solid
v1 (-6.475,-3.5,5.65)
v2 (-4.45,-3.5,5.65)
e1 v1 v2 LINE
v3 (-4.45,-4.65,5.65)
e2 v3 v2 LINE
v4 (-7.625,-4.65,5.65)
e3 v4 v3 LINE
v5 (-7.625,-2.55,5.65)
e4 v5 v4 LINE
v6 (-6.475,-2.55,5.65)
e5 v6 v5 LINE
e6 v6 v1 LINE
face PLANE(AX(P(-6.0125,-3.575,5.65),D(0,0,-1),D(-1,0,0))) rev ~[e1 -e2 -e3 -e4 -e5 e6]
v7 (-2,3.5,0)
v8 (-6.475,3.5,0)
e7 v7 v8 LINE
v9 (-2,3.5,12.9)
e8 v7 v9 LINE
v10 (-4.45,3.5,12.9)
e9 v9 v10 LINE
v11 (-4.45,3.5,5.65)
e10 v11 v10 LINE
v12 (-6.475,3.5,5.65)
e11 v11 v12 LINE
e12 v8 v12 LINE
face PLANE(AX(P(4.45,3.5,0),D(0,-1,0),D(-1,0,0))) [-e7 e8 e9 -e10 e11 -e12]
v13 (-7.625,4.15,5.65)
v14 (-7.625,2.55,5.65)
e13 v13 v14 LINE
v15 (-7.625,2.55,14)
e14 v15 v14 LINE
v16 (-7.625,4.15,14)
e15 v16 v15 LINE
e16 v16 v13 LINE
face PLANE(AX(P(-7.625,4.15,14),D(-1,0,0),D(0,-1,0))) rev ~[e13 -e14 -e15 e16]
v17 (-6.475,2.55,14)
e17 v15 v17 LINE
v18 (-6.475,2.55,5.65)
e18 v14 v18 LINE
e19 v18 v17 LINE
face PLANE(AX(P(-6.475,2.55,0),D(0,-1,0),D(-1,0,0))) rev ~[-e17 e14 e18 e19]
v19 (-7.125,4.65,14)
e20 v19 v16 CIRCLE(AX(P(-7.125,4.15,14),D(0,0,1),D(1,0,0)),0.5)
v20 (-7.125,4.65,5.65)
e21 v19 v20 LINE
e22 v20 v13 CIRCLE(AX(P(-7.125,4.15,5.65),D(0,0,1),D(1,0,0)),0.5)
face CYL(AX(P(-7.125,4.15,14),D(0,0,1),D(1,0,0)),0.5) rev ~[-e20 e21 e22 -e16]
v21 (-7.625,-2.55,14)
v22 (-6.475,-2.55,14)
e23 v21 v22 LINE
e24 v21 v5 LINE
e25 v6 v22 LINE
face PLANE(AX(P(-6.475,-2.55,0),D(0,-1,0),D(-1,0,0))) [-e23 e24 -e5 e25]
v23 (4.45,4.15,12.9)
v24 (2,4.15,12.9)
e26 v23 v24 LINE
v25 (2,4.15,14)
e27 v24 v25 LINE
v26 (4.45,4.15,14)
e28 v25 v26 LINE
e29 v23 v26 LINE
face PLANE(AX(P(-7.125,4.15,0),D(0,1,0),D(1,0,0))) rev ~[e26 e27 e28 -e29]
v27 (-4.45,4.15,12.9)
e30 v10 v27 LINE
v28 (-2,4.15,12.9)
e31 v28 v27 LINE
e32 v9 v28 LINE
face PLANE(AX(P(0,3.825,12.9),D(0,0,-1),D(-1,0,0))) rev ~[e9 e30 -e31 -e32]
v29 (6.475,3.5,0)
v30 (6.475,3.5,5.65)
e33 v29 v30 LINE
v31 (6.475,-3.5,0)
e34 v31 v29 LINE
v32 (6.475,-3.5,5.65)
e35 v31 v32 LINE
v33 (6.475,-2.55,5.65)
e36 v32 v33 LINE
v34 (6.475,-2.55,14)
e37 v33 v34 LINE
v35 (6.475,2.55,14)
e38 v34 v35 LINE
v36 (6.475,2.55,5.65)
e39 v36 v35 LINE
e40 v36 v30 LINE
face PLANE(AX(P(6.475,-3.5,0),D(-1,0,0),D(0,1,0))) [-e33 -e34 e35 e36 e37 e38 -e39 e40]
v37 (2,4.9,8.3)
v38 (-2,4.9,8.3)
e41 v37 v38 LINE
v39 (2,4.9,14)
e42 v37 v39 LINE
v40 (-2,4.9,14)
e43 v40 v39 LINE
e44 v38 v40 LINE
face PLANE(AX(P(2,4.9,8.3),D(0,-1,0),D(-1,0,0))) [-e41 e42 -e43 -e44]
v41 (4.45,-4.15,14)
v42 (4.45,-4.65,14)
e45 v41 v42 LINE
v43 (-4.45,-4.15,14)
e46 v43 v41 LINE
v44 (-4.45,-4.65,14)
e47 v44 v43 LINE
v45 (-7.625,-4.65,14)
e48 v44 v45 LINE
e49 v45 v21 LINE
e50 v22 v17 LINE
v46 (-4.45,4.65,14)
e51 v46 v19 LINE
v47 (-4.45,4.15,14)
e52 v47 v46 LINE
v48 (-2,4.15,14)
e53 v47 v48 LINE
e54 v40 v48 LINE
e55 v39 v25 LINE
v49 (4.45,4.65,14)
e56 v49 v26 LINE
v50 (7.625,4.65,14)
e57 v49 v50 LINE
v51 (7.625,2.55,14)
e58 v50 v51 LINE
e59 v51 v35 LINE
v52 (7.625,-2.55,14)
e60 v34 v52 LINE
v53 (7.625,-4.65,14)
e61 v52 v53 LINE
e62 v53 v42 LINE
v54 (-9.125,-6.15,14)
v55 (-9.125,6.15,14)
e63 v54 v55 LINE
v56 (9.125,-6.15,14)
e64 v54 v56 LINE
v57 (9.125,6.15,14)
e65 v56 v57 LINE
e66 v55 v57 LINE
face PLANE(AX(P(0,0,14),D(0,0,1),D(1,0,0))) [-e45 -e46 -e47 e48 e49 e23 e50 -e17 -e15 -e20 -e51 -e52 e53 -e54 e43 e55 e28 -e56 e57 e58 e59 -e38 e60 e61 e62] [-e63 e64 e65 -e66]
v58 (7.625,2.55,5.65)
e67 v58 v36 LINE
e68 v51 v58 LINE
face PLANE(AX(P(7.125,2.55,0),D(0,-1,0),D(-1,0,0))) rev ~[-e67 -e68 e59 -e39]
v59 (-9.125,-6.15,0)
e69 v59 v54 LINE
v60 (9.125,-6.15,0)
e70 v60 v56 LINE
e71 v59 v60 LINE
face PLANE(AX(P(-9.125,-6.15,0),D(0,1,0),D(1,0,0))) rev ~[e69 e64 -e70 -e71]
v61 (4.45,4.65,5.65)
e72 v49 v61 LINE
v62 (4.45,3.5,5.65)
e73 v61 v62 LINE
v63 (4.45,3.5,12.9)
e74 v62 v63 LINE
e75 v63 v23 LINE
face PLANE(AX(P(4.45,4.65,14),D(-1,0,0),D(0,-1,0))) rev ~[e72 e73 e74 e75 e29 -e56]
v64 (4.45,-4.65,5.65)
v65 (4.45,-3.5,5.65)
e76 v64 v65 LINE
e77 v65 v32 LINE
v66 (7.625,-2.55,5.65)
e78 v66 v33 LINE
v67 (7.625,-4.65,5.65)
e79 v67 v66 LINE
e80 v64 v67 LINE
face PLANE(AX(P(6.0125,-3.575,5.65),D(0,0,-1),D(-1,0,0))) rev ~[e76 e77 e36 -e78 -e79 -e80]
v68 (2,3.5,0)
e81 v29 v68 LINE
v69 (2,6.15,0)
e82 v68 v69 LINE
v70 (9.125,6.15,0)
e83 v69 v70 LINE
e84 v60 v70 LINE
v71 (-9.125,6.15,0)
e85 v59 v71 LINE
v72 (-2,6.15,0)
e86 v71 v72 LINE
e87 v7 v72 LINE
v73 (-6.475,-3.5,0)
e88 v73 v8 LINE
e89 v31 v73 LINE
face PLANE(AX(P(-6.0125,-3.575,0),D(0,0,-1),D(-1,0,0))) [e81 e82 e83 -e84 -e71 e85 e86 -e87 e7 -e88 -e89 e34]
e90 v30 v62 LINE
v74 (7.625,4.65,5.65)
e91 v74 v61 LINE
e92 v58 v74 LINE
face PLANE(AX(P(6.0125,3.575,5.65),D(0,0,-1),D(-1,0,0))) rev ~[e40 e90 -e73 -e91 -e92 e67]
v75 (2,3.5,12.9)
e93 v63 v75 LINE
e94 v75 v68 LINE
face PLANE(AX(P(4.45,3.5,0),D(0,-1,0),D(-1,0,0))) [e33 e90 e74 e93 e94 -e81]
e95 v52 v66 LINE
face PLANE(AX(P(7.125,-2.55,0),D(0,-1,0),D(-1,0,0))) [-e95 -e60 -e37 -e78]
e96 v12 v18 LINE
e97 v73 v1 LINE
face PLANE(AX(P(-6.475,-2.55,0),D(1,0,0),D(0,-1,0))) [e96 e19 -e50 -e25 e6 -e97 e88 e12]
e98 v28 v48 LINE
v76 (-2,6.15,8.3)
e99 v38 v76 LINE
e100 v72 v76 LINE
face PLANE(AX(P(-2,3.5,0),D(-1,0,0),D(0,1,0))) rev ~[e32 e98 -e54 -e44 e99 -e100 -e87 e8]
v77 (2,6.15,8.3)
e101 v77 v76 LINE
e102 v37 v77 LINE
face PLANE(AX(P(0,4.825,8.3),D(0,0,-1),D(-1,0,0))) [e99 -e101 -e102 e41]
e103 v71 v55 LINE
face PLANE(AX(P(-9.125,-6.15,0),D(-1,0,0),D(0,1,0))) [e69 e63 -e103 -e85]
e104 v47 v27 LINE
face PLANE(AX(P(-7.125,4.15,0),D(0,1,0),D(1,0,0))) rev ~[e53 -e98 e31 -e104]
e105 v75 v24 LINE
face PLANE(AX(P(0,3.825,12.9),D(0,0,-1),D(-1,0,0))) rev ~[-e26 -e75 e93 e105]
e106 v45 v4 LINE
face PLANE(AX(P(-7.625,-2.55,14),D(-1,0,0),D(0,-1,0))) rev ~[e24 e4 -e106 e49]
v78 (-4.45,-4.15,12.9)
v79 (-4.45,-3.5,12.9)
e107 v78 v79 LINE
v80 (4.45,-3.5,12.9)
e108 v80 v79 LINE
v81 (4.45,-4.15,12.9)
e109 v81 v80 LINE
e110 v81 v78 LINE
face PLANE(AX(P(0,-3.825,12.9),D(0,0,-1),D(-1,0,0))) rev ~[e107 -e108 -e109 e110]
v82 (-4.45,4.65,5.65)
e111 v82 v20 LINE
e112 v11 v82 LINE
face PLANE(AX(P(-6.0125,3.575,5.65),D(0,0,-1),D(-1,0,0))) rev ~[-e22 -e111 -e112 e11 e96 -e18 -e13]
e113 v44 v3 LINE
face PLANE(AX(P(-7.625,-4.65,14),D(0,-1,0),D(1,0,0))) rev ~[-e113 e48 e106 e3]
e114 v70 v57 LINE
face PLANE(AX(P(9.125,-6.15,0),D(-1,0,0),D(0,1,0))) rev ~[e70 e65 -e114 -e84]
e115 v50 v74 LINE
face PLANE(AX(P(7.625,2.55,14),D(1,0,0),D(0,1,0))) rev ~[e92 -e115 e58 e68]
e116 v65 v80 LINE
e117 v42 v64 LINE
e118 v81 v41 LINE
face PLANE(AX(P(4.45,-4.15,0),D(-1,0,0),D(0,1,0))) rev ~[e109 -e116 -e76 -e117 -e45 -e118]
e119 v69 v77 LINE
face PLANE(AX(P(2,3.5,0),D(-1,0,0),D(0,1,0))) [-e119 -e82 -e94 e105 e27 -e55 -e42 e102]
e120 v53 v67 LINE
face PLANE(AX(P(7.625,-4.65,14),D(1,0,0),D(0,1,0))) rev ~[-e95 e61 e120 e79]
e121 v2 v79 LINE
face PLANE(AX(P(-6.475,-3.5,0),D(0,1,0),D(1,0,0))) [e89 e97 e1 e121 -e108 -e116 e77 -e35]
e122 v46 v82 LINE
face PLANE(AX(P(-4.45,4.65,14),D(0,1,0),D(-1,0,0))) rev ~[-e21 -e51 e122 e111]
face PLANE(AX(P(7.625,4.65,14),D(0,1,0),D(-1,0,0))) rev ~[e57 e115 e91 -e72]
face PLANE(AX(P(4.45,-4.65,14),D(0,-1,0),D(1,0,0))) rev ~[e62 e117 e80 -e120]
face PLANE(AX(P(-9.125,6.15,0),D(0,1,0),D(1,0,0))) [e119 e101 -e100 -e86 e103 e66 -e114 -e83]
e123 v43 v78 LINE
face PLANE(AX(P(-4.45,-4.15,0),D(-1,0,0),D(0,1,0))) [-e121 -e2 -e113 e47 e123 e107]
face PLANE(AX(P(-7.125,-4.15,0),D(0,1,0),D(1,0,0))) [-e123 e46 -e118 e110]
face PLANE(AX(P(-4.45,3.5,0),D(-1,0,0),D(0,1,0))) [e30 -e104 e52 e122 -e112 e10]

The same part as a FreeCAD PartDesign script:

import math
import FreeCAD as App
import Part
import Sketcher
from FreeCAD import Vector

doc = App.newDocument("Part")
body = doc.addObject("PartDesign::Body", "Body")

# Sketch on XY plane
sketch1 = doc.addObject("Sketcher::SketchObject", "Sketch")
body.addObject(sketch1)
sketch1.AttachmentSupport = (doc.XY_Plane, [""])
sketch1.MapMode = "FlatFace"
sketch1.addGeometry([
    Part.LineSegment(Vector(-9.125, 6.15, 0), Vector(-9.125, -6.15, 0)),  # 0
    Part.LineSegment(Vector(-9.125, -6.15, 0), Vector(9.125, -6.15, 0)),  # 1
    Part.LineSegment(Vector(9.125, -6.15, 0), Vector(9.125, 6.15, 0)),  # 2
    Part.LineSegment(Vector(9.125, 6.15, 0), Vector(-9.125, 6.15, 0)),  # 3
    Part.LineSegment(Vector(7.125, -4.15, 0), Vector(-7.125, -4.15, 0)),  # 4
    Part.LineSegment(Vector(-7.125, -4.15, 0), Vector(-7.125, 4.15, 0)),  # 5
    Part.LineSegment(Vector(-7.125, 4.15, 0), Vector(7.125, 4.15, 0)),  # 6
    Part.LineSegment(Vector(7.125, 4.15, 0), Vector(7.125, -4.15, 0)),  # 7
], False)
sketch1.addConstraint([
    Sketcher.Constraint("Coincident", 0, 2, 1, 1),
    Sketcher.Constraint("Coincident", 1, 2, 2, 1),
    Sketcher.Constraint("Coincident", 2, 2, 3, 1),
    Sketcher.Constraint("Coincident", 3, 2, 0, 1),
    Sketcher.Constraint("Coincident", 4, 2, 5, 1),
    Sketcher.Constraint("Coincident", 5, 2, 6, 1),
    Sketcher.Constraint("Coincident", 6, 2, 7, 1),
    Sketcher.Constraint("Coincident", 7, 2, 4, 1),
    Sketcher.Constraint("Vertical", 0),
    Sketcher.Constraint("Horizontal", 1),
    Sketcher.Constraint("Vertical", 2),
    Sketcher.Constraint("Horizontal", 3),
    Sketcher.Constraint("Horizontal", 4),
    Sketcher.Constraint("Vertical", 5),
    Sketcher.Constraint("Horizontal", 6),
    Sketcher.Constraint("Vertical", 7),
    Sketcher.Constraint("Symmetric", 0, 2, 2, 2, -1, 1),
    Sketcher.Constraint("Symmetric", 4, 2, 6, 2, -1, 1),
    Sketcher.Constraint("DistanceY", 0, 2, 0, 1, 12.3),
    Sketcher.Constraint("DistanceY", 5, 1, 5, 2, 8.3),
    Sketcher.Constraint("DistanceX", 0, 2, 4, 2, 2.0),
    Sketcher.Constraint("DistanceX", 1, 1, 1, 2, 18.25),
])
pad1 = doc.addObject("PartDesign::Pad", "Pad")
body.addObject(pad1)
pad1.Profile = sketch1
pad1.Length = 14

# Sketch on XY plane
sketch2 = doc.addObject("Sketcher::SketchObject", "Sketch001")
body.addObject(sketch2)
sketch2.AttachmentSupport = (doc.XY_Plane, [""])
sketch2.MapMode = "FlatFace"
sketch2.addGeometry([
    Part.LineSegment(Vector(4.45, 4.15, 0), Vector(4.45, 3.5, 0)),  # 0
    Part.LineSegment(Vector(4.45, 3.5, 0), Vector(-4.45, 3.5, 0)),  # 1
    Part.LineSegment(Vector(-4.45, 3.5, 0), Vector(-4.45, 4.15, 0)),  # 2
    Part.LineSegment(Vector(-4.45, 4.15, 0), Vector(4.45, 4.15, 0)),  # 3
    Part.LineSegment(Vector(4.45, -3.5, 0), Vector(4.45, -4.15, 0)),  # 4
    Part.LineSegment(Vector(4.45, -4.15, 0), Vector(-4.45, -4.15, 0)),  # 5
    Part.LineSegment(Vector(-4.45, -4.15, 0), Vector(-4.45, -3.5, 0)),  # 6
    Part.LineSegment(Vector(-4.45, -3.5, 0), Vector(4.45, -3.5, 0)),  # 7
], False)
sketch2.addConstraint([
    Sketcher.Constraint("Coincident", 0, 2, 1, 1),
    Sketcher.Constraint("Coincident", 1, 2, 2, 1),
    Sketcher.Constraint("Coincident", 2, 2, 3, 1),
    Sketcher.Constraint("Coincident", 3, 2, 0, 1),
    Sketcher.Constraint("Coincident", 4, 2, 5, 1),
    Sketcher.Constraint("Coincident", 5, 2, 6, 1),
    Sketcher.Constraint("Coincident", 6, 2, 7, 1),
    Sketcher.Constraint("Coincident", 7, 2, 4, 1),
    Sketcher.Constraint("Vertical", 0),
    Sketcher.Constraint("Horizontal", 1),
    Sketcher.Constraint("Vertical", 2),
    Sketcher.Constraint("Horizontal", 3),
    Sketcher.Constraint("Vertical", 4),
    Sketcher.Constraint("Horizontal", 5),
    Sketcher.Constraint("Vertical", 6),
    Sketcher.Constraint("Horizontal", 7),
    Sketcher.Constraint("Symmetric", 2, 2, 4, 2, -1, 1),
    Sketcher.Constraint("Symmetric", 0, 2, 6, 2, -1, 1),
    Sketcher.Constraint("Vertical", 3, 2, 4, 2),
    Sketcher.Constraint("DistanceX", 1, 2, 1, 1, 8.9),
    Sketcher.Constraint("DistanceY", 6, 2, 1, 2, 7.0),
    Sketcher.Constraint("DistanceY", 0, 2, 0, 1, 0.65),
])
pad2 = doc.addObject("PartDesign::Pad", "Pad001")
body.addObject(pad2)
pad2.Profile = sketch2
pad2.Length = 12.9

# Sketch on XY plane
sketch3 = doc.addObject("Sketcher::SketchObject", "Sketch002")
body.addObject(sketch3)
sketch3.AttachmentSupport = (doc.XY_Plane, [""])
sketch3.MapMode = "FlatFace"
sketch3.addGeometry([
    Part.LineSegment(Vector(7.125, 2.55, 0), Vector(7.125, -2.55, 0)),  # 0
    Part.LineSegment(Vector(7.125, -2.55, 0), Vector(6.475, -2.55, 0)),  # 1
    Part.LineSegment(Vector(6.475, -2.55, 0), Vector(6.475, 2.55, 0)),  # 2
    Part.LineSegment(Vector(6.475, 2.55, 0), Vector(7.125, 2.55, 0)),  # 3
    Part.LineSegment(Vector(-6.475, 2.55, 0), Vector(-6.475, -2.55, 0)),  # 4
    Part.LineSegment(Vector(-6.475, -2.55, 0), Vector(-7.125, -2.55, 0)),  # 5
    Part.LineSegment(Vector(-7.125, -2.55, 0), Vector(-7.125, 2.55, 0)),  # 6
    Part.LineSegment(Vector(-7.125, 2.55, 0), Vector(-6.475, 2.55, 0)),  # 7
], False)
sketch3.addConstraint([
    Sketcher.Constraint("Coincident", 0, 2, 1, 1),
    Sketcher.Constraint("Coincident", 1, 2, 2, 1),
    Sketcher.Constraint("Coincident", 2, 2, 3, 1),
    Sketcher.Constraint("Coincident", 3, 2, 0, 1),
    Sketcher.Constraint("Coincident", 4, 2, 5, 1),
    Sketcher.Constraint("Coincident", 5, 2, 6, 1),
    Sketcher.Constraint("Coincident", 6, 2, 7, 1),
    Sketcher.Constraint("Coincident", 7, 2, 4, 1),
    Sketcher.Constraint("Vertical", 0),
    Sketcher.Constraint("Horizontal", 1),
    Sketcher.Constraint("Vertical", 2),
    Sketcher.Constraint("Horizontal", 3),
    Sketcher.Constraint("Vertical", 4),
    Sketcher.Constraint("Horizontal", 5),
    Sketcher.Constraint("Vertical", 6),
    Sketcher.Constraint("Horizontal", 7),
    Sketcher.Constraint("Symmetric", 2, 2, 4, 2, -1, 1),
    Sketcher.Constraint("Symmetric", 0, 2, 6, 2, -1, 1),
    Sketcher.Constraint("Horizontal", 1, 2, 4, 2),
    Sketcher.Constraint("DistanceY", 0, 2, 0, 1, 5.1),
    Sketcher.Constraint("DistanceX", 1, 2, 1, 1, 0.65),
    Sketcher.Constraint("DistanceX", 4, 2, 0, 2, 13.6),
])
pad3 = doc.addObject("PartDesign::Pad", "Pad002")
body.addObject(pad3)
pad3.Profile = sketch3
pad3.Length = 14

# Sketch on XY plane
sketch4 = doc.addObject("Sketcher::SketchObject", "Sketch003")
body.addObject(sketch4)
sketch4.AttachmentSupport = (doc.XY_Plane, [""])
sketch4.MapMode = "FlatFace"
sketch4.addGeometry([
    Part.LineSegment(Vector(2, 6.15, 0), Vector(2, 3.5, 0)),
    Part.LineSegment(Vector(2, 3.5, 0), Vector(-2, 3.5, 0)),
    Part.LineSegment(Vector(-2, 3.5, 0), Vector(-2, 6.15, 0)),
    Part.LineSegment(Vector(-2, 6.15, 0), Vector(2, 6.15, 0)),
], False)
sketch4.addConstraint([
    Sketcher.Constraint("Coincident", 0, 2, 1, 1),
    Sketcher.Constraint("Coincident", 1, 2, 2, 1),
    Sketcher.Constraint("Coincident", 2, 2, 3, 1),
    Sketcher.Constraint("Coincident", 3, 2, 0, 1),
    Sketcher.Constraint("Vertical", 0),
    Sketcher.Constraint("Horizontal", 1),
    Sketcher.Constraint("Vertical", 2),
    Sketcher.Constraint("Horizontal", 3),
    Sketcher.Constraint("DistanceX", 1, 2, 1, 1, 4.0),
    Sketcher.Constraint("DistanceX", -1, 1, 0, 2, 2.0),
    Sketcher.Constraint("DistanceY", 0, 2, 0, 1, 2.65),
    Sketcher.Constraint("DistanceY", -1, 1, 0, 2, 3.5),
])
pocket1 = doc.addObject("PartDesign::Pocket", "Pocket")
body.addObject(pocket1)
pocket1.Profile = sketch4
pocket1.Length = 8.3
pocket1.Reversed = True

# Sketch on XY plane
sketch5 = doc.addObject("Sketcher::SketchObject", "Sketch004")
body.addObject(sketch5)
sketch5.AttachmentSupport = (doc.XY_Plane, [""])
sketch5.MapMode = "FlatFace"
sketch5.addGeometry([
    Part.LineSegment(Vector(-6.475, -3.5, 0), Vector(-4.45, -3.5, 0)),  # 0
    Part.LineSegment(Vector(-4.45, -3.5, 0), Vector(-4.45, -4.15, 0)),  # 1
    Part.LineSegment(Vector(-4.45, -4.15, 0), Vector(-7.125, -4.15, 0)),  # 2
    Part.LineSegment(Vector(-7.125, -4.15, 0), Vector(-7.125, -2.55, 0)),  # 3
    Part.LineSegment(Vector(-7.125, -2.55, 0), Vector(-6.475, -2.55, 0)),  # 4
    Part.LineSegment(Vector(-6.475, -2.55, 0), Vector(-6.475, -3.5, 0)),  # 5
    Part.LineSegment(Vector(-6.475, 3.5, 0), Vector(-6.475, 2.55, 0)),  # 6
    Part.LineSegment(Vector(-6.475, 2.55, 0), Vector(-7.125, 2.55, 0)),  # 7
    Part.LineSegment(Vector(-7.125, 2.55, 0), Vector(-7.125, 4.15, 0)),  # 8
    Part.LineSegment(Vector(-7.125, 4.15, 0), Vector(-4.45, 4.15, 0)),  # 9
    Part.LineSegment(Vector(-4.45, 4.15, 0), Vector(-4.45, 3.5, 0)),  # 10
    Part.LineSegment(Vector(-4.45, 3.5, 0), Vector(-6.475, 3.5, 0)),  # 11
    Part.LineSegment(Vector(7.125, 2.55, 0), Vector(6.475, 2.55, 0)),  # 12
    Part.LineSegment(Vector(6.475, 2.55, 0), Vector(6.475, 3.5, 0)),  # 13
    Part.LineSegment(Vector(6.475, 3.5, 0), Vector(4.45, 3.5, 0)),  # 14
    Part.LineSegment(Vector(4.45, 3.5, 0), Vector(4.45, 4.15, 0)),  # 15
    Part.LineSegment(Vector(4.45, 4.15, 0), Vector(7.125, 4.15, 0)),  # 16
    Part.LineSegment(Vector(7.125, 4.15, 0), Vector(7.125, 2.55, 0)),  # 17
    Part.LineSegment(Vector(4.45, -4.15, 0), Vector(4.45, -3.5, 0)),  # 18
    Part.LineSegment(Vector(4.45, -3.5, 0), Vector(6.475, -3.5, 0)),  # 19
    Part.LineSegment(Vector(6.475, -3.5, 0), Vector(6.475, -2.55, 0)),  # 20
    Part.LineSegment(Vector(6.475, -2.55, 0), Vector(7.125, -2.55, 0)),  # 21
    Part.LineSegment(Vector(7.125, -2.55, 0), Vector(7.125, -4.15, 0)),  # 22
    Part.LineSegment(Vector(7.125, -4.15, 0), Vector(4.45, -4.15, 0)),  # 23
], False)
sketch5.addConstraint([
    Sketcher.Constraint("Coincident", 0, 2, 1, 1),
    Sketcher.Constraint("Coincident", 1, 2, 2, 1),
    Sketcher.Constraint("Coincident", 2, 2, 3, 1),
    Sketcher.Constraint("Coincident", 3, 2, 4, 1),
    Sketcher.Constraint("Coincident", 4, 2, 5, 1),
    Sketcher.Constraint("Coincident", 5, 2, 0, 1),
    Sketcher.Constraint("Coincident", 6, 2, 7, 1),
    Sketcher.Constraint("Coincident", 7, 2, 8, 1),
    Sketcher.Constraint("Coincident", 8, 2, 9, 1),
    Sketcher.Constraint("Coincident", 9, 2, 10, 1),
    Sketcher.Constraint("Coincident", 10, 2, 11, 1),
    Sketcher.Constraint("Coincident", 11, 2, 6, 1),
    Sketcher.Constraint("Coincident", 12, 2, 13, 1),
    Sketcher.Constraint("Coincident", 13, 2, 14, 1),
    Sketcher.Constraint("Coincident", 14, 2, 15, 1),
    Sketcher.Constraint("Coincident", 15, 2, 16, 1),
    Sketcher.Constraint("Coincident", 16, 2, 17, 1),
    Sketcher.Constraint("Coincident", 17, 2, 12, 1),
    Sketcher.Constraint("Coincident", 18, 2, 19, 1),
    Sketcher.Constraint("Coincident", 19, 2, 20, 1),
    Sketcher.Constraint("Coincident", 20, 2, 21, 1),
    Sketcher.Constraint("Coincident", 21, 2, 22, 1),
    Sketcher.Constraint("Coincident", 22, 2, 23, 1),
    Sketcher.Constraint("Coincident", 23, 2, 18, 1),
    Sketcher.Constraint("Horizontal", 0),
    Sketcher.Constraint("Vertical", 1),
    Sketcher.Constraint("Horizontal", 2),
    Sketcher.Constraint("Vertical", 3),
    Sketcher.Constraint("Horizontal", 4),
    Sketcher.Constraint("Vertical", 5),
    Sketcher.Constraint("Vertical", 6),
    Sketcher.Constraint("Horizontal", 7),
    Sketcher.Constraint("Vertical", 8),
    Sketcher.Constraint("Horizontal", 9),
    Sketcher.Constraint("Vertical", 10),
    Sketcher.Constraint("Horizontal", 11),
    Sketcher.Constraint("Horizontal", 12),
    Sketcher.Constraint("Vertical", 13),
    Sketcher.Constraint("Horizontal", 14),
    Sketcher.Constraint("Vertical", 15),
    Sketcher.Constraint("Horizontal", 16),
    Sketcher.Constraint("Vertical", 17),
    Sketcher.Constraint("Vertical", 18),
    Sketcher.Constraint("Horizontal", 19),
    Sketcher.Constraint("Vertical", 20),
    Sketcher.Constraint("Horizontal", 21),
    Sketcher.Constraint("Vertical", 22),
    Sketcher.Constraint("Horizontal", 23),
    Sketcher.Constraint("Symmetric", 4, 2, 12, 2, -1, 1),
    Sketcher.Constraint("Symmetric", 0, 2, 14, 2, -1, 1),
    Sketcher.Constraint("Symmetric", 2, 2, 16, 2, -1, 1),
    Sketcher.Constraint("Symmetric", 10, 2, 18, 2, -1, 1),
    Sketcher.Constraint("Symmetric", 6, 2, 20, 2, -1, 1),
    Sketcher.Constraint("Symmetric", 8, 2, 22, 2, -1, 1),
    Sketcher.Constraint("Symmetric", 6, 2, 12, 2, -2),
    Sketcher.Constraint("Symmetric", 10, 2, 14, 2, -2),
    Sketcher.Constraint("Symmetric", 8, 2, 16, 2, -2),
    Sketcher.Constraint("Equal", 21, 1),
    Sketcher.Constraint("DistanceY", 3, 1, 3, 2, 1.6),
    Sketcher.Constraint("DistanceY", 0, 2, 13, 2, 7.0),
    Sketcher.Constraint("DistanceX", 4, 1, 4, 2, 0.65),
    Sketcher.Constraint("DistanceX", 10, 2, 14, 2, 8.9),
    Sketcher.Constraint("DistanceX", 0, 1, 0, 2, 2.025),
])
pad4 = doc.addObject("PartDesign::Pad", "Pad003")
body.addObject(pad4)
pad4.Profile = sketch5
pad4.Length = 5.65

# Sketch on XY plane
sketch6 = doc.addObject("Sketcher::SketchObject", "Sketch005")
body.addObject(sketch6)
sketch6.AttachmentSupport = (doc.XY_Plane, [""])
sketch6.MapMode = "FlatFace"
sketch6.AttachmentOffset = App.Placement(Vector(0, 0, 8.3), App.Rotation())
sketch6.addGeometry([
    Part.LineSegment(Vector(2, 4.9, 0), Vector(2, 3.5, 0)),
    Part.LineSegment(Vector(2, 3.5, 0), Vector(-2, 3.5, 0)),
    Part.LineSegment(Vector(-2, 3.5, 0), Vector(-2, 4.9, 0)),
    Part.LineSegment(Vector(-2, 4.9, 0), Vector(2, 4.9, 0)),
], False)
sketch6.addConstraint([
    Sketcher.Constraint("Coincident", 0, 2, 1, 1),
    Sketcher.Constraint("Coincident", 1, 2, 2, 1),
    Sketcher.Constraint("Coincident", 2, 2, 3, 1),
    Sketcher.Constraint("Coincident", 3, 2, 0, 1),
    Sketcher.Constraint("Vertical", 0),
    Sketcher.Constraint("Horizontal", 1),
    Sketcher.Constraint("Vertical", 2),
    Sketcher.Constraint("Horizontal", 3),
    Sketcher.Constraint("DistanceX", 1, 2, 1, 1, 4.0),
    Sketcher.Constraint("DistanceY", 0, 2, 0, 1, 1.4),
    Sketcher.Constraint("DistanceX", -1, 1, 0, 2, 2.0),
    Sketcher.Constraint("DistanceY", -1, 1, 0, 2, 3.5),
])
pocket2 = doc.addObject("PartDesign::Pocket", "Pocket001")
body.addObject(pocket2)
pocket2.Profile = sketch6
pocket2.Type = "ThroughAll"
pocket2.Reversed = True

# Sketch on XY plane
sketch7 = doc.addObject("Sketcher::SketchObject", "Sketch006")
body.addObject(sketch7)
sketch7.AttachmentSupport = (doc.XY_Plane, [""])
sketch7.MapMode = "FlatFace"
sketch7.AttachmentOffset = App.Placement(Vector(0, 0, 14), App.Rotation())
sketch7.addGeometry(Part.Circle(Vector(-7.125, 4.15, 0), Vector(0, 0, 1), 0.5), False)
sketch7.addConstraint([
    Sketcher.Constraint("Diameter", 0, 1.0),
    Sketcher.Constraint("DistanceY", -1, 1, 0, 3, 4.15),
    Sketcher.Constraint("DistanceX", 0, 3, -1, 1, 7.125),
])
pocket3 = doc.addObject("PartDesign::Pocket", "Pocket002")
body.addObject(pocket3)
pocket3.Profile = sketch7
pocket3.Length = 8.35
doc.recompute()

mirrored = doc.addObject("PartDesign::Mirrored", "Mirrored")
body.addObject(mirrored)
mirrored.Originals = [pocket3]
mirrored.MirrorPlane = (doc.XZ_Plane, [""])
body.Tip = mirrored
doc.recompute()

mirrored2 = doc.addObject("PartDesign::Mirrored", "Mirrored001")
body.addObject(mirrored2)
mirrored2.Originals = [pocket3]
mirrored2.MirrorPlane = (doc.YZ_Plane, [""])
body.Tip = mirrored2

# Sketch on XY plane
sketch8 = doc.addObject("Sketcher::SketchObject", "Sketch007")
body.addObject(sketch8)
sketch8.AttachmentSupport = (doc.XY_Plane, [""])
sketch8.MapMode = "FlatFace"
sketch8.AttachmentOffset = App.Placement(Vector(0, 0, 14), App.Rotation())
sketch8.addGeometry(Part.Circle(Vector(7.125, -4.15, 0), Vector(0, 0, 1), 0.5), False)
sketch8.addConstraint([
    Sketcher.Constraint("Diameter", 0, 1.0),
    Sketcher.Constraint("DistanceY", 0, 3, -1, 1, 4.15),
    Sketcher.Constraint("DistanceX", -1, 1, 0, 3, 7.125),
])
pocket4 = doc.addObject("PartDesign::Pocket", "Pocket003")
body.addObject(pocket4)
pocket4.Profile = sketch8
pocket4.Length = 8.35

# Sketch on XY plane
sketch9 = doc.addObject("Sketcher::SketchObject", "Sketch008")
body.addObject(sketch9)
sketch9.AttachmentSupport = (doc.XY_Plane, [""])
sketch9.MapMode = "FlatFace"
sketch9.AttachmentOffset = App.Placement(Vector(0, 0, 14), App.Rotation())
sketch9.addGeometry([
    Part.LineSegment(Vector(-4.45, -4.65, 0), Vector(-4.45, -2.55, 0)),  # 0
    Part.LineSegment(Vector(-4.45, -2.55, 0), Vector(-7.625, -2.55, 0)),  # 1
    Part.LineSegment(Vector(-7.625, -2.55, 0), Vector(-7.625, -4.65, 0)),  # 2
    Part.LineSegment(Vector(-7.625, -4.65, 0), Vector(-4.45, -4.65, 0)),  # 3
    Part.LineSegment(Vector(-7.625, 4.15, 0), Vector(-7.625, 2.55, 0)),  # 4
    Part.LineSegment(Vector(-7.625, 2.55, 0), Vector(-7.125, 2.55, 0)),  # 5
    Part.LineSegment(Vector(-7.125, 2.55, 0), Vector(-7.125, 3.65, 0)),  # 6
    Part.ArcOfCircle(Part.Circle(Vector(-7.125, 4.15, 0), Vector(0, 0, 1), 0.5), math.radians(180), math.radians(270)),  # 7
    Part.LineSegment(Vector(-4.45, 4.65, 0), Vector(-7.125, 4.65, 0)),  # 8
    Part.ArcOfCircle(Part.Circle(Vector(-7.125, 4.15, 0), Vector(0, 0, 1), 0.5), math.radians(0), math.radians(90)),  # 9
    Part.LineSegment(Vector(-6.625, 4.15, 0), Vector(-4.45, 4.15, 0)),  # 10
    Part.LineSegment(Vector(-4.45, 4.15, 0), Vector(-4.45, 4.65, 0)),  # 11
    Part.LineSegment(Vector(7.625, -2.55, 0), Vector(4.45, -2.55, 0)),  # 12
    Part.LineSegment(Vector(4.45, -2.55, 0), Vector(4.45, -4.65, 0)),  # 13
    Part.LineSegment(Vector(4.45, -4.65, 0), Vector(7.625, -4.65, 0)),  # 14
    Part.LineSegment(Vector(7.625, -4.65, 0), Vector(7.625, -2.55, 0)),  # 15
    Part.LineSegment(Vector(7.625, 4.65, 0), Vector(4.45, 4.65, 0)),  # 16
    Part.LineSegment(Vector(4.45, 4.65, 0), Vector(4.45, 2.55, 0)),  # 17
    Part.LineSegment(Vector(4.45, 2.55, 0), Vector(7.625, 2.55, 0)),  # 18
    Part.LineSegment(Vector(7.625, 2.55, 0), Vector(7.625, 4.65, 0)),  # 19
], False)
sketch9.addConstraint([
    Sketcher.Constraint("Coincident", 0, 2, 1, 1),
    Sketcher.Constraint("Coincident", 1, 2, 2, 1),
    Sketcher.Constraint("Coincident", 2, 2, 3, 1),
    Sketcher.Constraint("Coincident", 3, 2, 0, 1),
    Sketcher.Constraint("Coincident", 4, 2, 5, 1),
    Sketcher.Constraint("Coincident", 5, 2, 6, 1),
    Sketcher.Constraint("Coincident", 6, 2, 7, 2),
    Sketcher.Constraint("Tangent", 7, 1, 4, 1),
    Sketcher.Constraint("Tangent", 8, 2, 9, 2),
    Sketcher.Constraint("Coincident", 9, 1, 10, 1),
    Sketcher.Constraint("Coincident", 10, 2, 11, 1),
    Sketcher.Constraint("Coincident", 11, 2, 8, 1),
    Sketcher.Constraint("Coincident", 12, 2, 13, 1),
    Sketcher.Constraint("Coincident", 13, 2, 14, 1),
    Sketcher.Constraint("Coincident", 14, 2, 15, 1),
    Sketcher.Constraint("Coincident", 15, 2, 12, 1),
    Sketcher.Constraint("Coincident", 16, 2, 17, 1),
    Sketcher.Constraint("Coincident", 17, 2, 18, 1),
    Sketcher.Constraint("Coincident", 18, 2, 19, 1),
    Sketcher.Constraint("Coincident", 19, 2, 16, 1),
    Sketcher.Constraint("Vertical", 0),
    Sketcher.Constraint("Horizontal", 1),
    Sketcher.Constraint("Vertical", 2),
    Sketcher.Constraint("Horizontal", 3),
    Sketcher.Constraint("Vertical", 4),
    Sketcher.Constraint("Horizontal", 5),
    Sketcher.Constraint("Vertical", 6),
    Sketcher.Constraint("Horizontal", 8),
    Sketcher.Constraint("Horizontal", 10),
    Sketcher.Constraint("Vertical", 11),
    Sketcher.Constraint("Horizontal", 12),
    Sketcher.Constraint("Vertical", 13),
    Sketcher.Constraint("Horizontal", 14),
    Sketcher.Constraint("Vertical", 15),
    Sketcher.Constraint("Horizontal", 16),
    Sketcher.Constraint("Vertical", 17),
    Sketcher.Constraint("Horizontal", 18),
    Sketcher.Constraint("Vertical", 19),
    Sketcher.Constraint("Coincident", 9, 3, 7, 3),
    Sketcher.Constraint("Equal", 7, 9),
    Sketcher.Constraint("Symmetric", 11, 2, 13, 2, -1, 1),
    Sketcher.Constraint("Symmetric", 4, 2, 15, 2, -1, 1),
    Sketcher.Constraint("Symmetric", 3, 2, 16, 2, -1, 1),
    Sketcher.Constraint("Symmetric", 1, 2, 18, 2, -1, 1),
    Sketcher.Constraint("Symmetric", 0, 2, 12, 2, -2),
    Sketcher.Constraint("Symmetric", 2, 2, 14, 2, -2),
    Sketcher.Constraint("Horizontal", 7, 1, 9, 1),
    Sketcher.Constraint("Vertical", 9, 3, 5, 2),
    Sketcher.Constraint("Radius", 7, 0.5),
    Sketcher.Constraint("DistanceY", 0, 1, 0, 2, 2.1),
    Sketcher.Constraint("DistanceY", 0, 2, 7, 3, 6.7),
    Sketcher.Constraint("DistanceX", 0, 2, 12, 2, 8.9),
    Sketcher.Constraint("DistanceX", 1, 2, 1, 1, 3.175),
])
pocket5 = doc.addObject("PartDesign::Pocket", "Pocket004")
body.addObject(pocket5)
pocket5.Profile = sketch9
pocket5.Length = 8.35

doc.recompute()
